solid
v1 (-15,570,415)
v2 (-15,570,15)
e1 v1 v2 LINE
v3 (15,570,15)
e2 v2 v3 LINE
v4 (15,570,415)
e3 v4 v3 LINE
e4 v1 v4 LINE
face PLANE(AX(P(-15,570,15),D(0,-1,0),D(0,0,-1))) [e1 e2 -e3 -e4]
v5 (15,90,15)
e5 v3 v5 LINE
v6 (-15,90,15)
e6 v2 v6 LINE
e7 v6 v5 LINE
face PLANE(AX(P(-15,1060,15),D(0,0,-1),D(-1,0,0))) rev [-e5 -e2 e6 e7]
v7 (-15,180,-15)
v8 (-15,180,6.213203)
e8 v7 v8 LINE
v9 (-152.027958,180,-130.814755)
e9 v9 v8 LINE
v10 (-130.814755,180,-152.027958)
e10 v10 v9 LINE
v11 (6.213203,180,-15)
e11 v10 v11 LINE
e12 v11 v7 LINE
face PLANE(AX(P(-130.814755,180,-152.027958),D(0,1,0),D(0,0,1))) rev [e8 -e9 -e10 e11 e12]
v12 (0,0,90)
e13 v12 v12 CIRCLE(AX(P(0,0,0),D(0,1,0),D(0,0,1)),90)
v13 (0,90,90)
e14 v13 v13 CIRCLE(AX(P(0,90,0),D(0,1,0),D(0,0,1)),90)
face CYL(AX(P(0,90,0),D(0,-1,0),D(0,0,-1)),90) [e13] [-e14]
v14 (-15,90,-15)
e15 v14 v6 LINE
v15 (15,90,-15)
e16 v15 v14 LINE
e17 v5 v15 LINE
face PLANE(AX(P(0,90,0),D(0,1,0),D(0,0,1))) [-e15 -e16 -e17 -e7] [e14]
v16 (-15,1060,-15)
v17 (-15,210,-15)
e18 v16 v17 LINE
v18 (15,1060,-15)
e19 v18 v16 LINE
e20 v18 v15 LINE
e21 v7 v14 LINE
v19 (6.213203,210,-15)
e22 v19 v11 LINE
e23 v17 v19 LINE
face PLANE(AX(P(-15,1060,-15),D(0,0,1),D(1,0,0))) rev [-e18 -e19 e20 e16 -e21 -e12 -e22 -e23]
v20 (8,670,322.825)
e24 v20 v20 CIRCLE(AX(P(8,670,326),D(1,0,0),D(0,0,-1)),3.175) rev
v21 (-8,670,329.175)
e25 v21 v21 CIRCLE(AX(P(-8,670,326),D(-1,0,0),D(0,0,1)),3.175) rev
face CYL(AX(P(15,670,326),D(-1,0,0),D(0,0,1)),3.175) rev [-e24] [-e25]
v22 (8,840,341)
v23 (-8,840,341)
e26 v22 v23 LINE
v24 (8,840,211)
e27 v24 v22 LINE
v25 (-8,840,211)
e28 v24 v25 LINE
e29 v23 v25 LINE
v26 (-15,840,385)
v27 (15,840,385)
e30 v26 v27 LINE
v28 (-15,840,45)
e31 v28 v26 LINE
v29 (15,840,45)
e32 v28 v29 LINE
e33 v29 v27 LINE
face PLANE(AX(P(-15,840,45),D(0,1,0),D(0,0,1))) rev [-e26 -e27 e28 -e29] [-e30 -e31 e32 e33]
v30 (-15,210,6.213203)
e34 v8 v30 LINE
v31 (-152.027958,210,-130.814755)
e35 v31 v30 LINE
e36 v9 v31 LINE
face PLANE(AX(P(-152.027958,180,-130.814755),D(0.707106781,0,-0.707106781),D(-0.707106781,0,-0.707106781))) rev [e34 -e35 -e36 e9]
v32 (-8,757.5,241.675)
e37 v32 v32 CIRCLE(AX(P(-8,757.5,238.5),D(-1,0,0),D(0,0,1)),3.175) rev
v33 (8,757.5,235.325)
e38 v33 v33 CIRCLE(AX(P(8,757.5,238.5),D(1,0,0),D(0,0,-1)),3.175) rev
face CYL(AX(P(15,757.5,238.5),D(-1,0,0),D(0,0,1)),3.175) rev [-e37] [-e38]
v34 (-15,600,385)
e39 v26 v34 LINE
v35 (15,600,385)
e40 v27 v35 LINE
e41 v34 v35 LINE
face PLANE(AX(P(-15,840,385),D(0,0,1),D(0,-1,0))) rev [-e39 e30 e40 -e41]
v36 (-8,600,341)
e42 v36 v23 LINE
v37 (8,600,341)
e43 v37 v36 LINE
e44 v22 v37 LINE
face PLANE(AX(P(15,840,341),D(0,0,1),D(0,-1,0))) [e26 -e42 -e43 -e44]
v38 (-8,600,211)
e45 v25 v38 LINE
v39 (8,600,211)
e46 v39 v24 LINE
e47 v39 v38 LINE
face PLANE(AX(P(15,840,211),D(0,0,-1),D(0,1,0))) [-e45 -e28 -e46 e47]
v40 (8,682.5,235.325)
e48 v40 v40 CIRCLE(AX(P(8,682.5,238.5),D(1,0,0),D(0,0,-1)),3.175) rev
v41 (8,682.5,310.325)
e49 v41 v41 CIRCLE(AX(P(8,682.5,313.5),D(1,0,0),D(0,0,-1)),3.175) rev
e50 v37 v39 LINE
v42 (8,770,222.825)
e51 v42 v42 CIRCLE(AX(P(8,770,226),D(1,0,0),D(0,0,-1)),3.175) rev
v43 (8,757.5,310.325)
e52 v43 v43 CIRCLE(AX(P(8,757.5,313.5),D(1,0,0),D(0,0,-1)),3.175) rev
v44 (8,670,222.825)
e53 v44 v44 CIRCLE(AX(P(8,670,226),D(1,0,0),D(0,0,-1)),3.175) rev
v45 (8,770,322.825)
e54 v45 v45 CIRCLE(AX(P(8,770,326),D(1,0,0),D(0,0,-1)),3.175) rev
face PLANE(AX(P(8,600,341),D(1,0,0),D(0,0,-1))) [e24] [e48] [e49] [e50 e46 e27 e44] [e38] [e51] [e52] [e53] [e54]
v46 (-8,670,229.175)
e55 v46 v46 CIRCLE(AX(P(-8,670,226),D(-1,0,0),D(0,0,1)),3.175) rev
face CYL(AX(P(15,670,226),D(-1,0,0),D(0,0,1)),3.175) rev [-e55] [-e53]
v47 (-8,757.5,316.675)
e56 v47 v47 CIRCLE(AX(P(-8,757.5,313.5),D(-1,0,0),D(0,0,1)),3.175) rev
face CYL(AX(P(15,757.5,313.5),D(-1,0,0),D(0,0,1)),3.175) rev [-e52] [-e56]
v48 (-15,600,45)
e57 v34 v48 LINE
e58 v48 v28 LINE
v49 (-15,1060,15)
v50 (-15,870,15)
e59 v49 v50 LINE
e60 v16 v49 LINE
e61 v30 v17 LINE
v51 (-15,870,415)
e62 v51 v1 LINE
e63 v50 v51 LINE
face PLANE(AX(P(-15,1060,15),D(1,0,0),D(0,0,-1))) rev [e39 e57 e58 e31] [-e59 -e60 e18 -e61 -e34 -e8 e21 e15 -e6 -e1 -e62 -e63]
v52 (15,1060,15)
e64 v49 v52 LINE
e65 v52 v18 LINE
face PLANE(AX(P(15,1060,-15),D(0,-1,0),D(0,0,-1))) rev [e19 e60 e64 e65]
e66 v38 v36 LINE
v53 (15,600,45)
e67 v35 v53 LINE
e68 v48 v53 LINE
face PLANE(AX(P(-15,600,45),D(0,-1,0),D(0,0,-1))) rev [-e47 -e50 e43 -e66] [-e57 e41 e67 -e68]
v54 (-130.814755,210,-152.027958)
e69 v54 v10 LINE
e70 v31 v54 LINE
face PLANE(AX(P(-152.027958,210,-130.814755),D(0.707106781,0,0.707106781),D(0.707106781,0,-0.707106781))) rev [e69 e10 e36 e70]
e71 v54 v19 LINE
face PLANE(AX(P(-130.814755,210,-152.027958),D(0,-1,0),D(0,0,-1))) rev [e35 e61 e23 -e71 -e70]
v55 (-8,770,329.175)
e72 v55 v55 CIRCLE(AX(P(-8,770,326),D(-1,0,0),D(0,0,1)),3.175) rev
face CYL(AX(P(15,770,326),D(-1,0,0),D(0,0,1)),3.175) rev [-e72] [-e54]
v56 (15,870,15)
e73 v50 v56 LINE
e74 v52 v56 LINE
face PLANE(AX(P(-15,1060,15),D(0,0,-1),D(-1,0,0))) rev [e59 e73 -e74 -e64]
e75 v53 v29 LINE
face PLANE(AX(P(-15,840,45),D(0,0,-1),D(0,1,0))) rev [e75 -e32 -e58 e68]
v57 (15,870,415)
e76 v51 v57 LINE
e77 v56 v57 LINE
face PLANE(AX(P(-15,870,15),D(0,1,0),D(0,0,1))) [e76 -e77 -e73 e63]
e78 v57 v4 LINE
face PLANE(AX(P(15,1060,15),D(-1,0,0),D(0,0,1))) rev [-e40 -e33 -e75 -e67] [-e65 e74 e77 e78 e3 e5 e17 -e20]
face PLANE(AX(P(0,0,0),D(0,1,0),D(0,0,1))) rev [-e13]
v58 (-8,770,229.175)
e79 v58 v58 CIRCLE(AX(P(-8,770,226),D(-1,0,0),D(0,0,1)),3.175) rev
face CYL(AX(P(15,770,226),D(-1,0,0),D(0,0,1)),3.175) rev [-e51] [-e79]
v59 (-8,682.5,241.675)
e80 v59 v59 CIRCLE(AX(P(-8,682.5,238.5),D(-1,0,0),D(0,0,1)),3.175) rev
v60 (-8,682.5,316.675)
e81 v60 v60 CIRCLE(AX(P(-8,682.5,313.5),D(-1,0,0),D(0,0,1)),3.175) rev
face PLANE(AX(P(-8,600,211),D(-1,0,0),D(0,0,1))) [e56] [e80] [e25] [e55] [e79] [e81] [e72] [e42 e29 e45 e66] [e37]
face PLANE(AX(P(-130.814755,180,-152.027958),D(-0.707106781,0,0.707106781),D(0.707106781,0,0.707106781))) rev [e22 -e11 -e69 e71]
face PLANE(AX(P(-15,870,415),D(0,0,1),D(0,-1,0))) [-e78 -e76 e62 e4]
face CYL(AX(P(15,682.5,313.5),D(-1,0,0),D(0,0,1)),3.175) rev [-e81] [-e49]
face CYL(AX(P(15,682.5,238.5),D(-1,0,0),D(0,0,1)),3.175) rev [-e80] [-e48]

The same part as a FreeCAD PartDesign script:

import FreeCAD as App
import Part
import Sketcher

V = App.Vector
Q = App.Units.Quantity


def add_polygon(sketch, points):
    """Adds a closed chain of lines whose ends are joined by coincident constraints."""
    first, n = sketch.GeometryCount, len(points)
    for a, b in zip(points, points[1:] + points[:1]):
        sketch.addGeometry(Part.LineSegment(App.Vector(*a, 0), App.Vector(*b, 0)), False)
    for i in range(n):
        sketch.addConstraint(Sketcher.Constraint("Coincident", first + i, 2, first + (i + 1) % n, 1))

doc = App.newDocument("Part")
body = doc.addObject("PartDesign::Body", "Body")

sketch1 = body.newObject("Sketcher::SketchObject", "Sketch")
sketch1.AttachmentSupport = (doc.getObject("XZ_Plane"), [""])
sketch1.MapMode = "FlatFace"
sketch1.addGeometry(Part.Circle(V(0, 0, 0), V(0, 0, 1), 90), False)
sketch1.addConstraint([
    Sketcher.Constraint("Coincident", 0, 3, -1, 1),
    Sketcher.Constraint("Diameter", 0, Q("180 mm")),
])
pad1 = body.newObject("PartDesign::Pad", "Pad")
pad1.Profile = sketch1
pad1.Length = 90
pad1.Reversed = True

sketch2 = body.newObject("Sketcher::SketchObject", "Sketch001")
sketch2.AttachmentSupport = (doc.getObject("XZ_Plane"), [""])
sketch2.MapMode = "FlatFace"
sketch2.AttachmentOffset = App.Placement(V(0, 0, -90), App.Rotation())
add_polygon(sketch2, [(-15, -15), (-15, 15), (15, 15), (15, -15)])
sketch2.addConstraint([
    Sketcher.Constraint("Vertical", 0),
    Sketcher.Constraint("Horizontal", 1),
    Sketcher.Constraint("Vertical", 2),
    Sketcher.Constraint("Horizontal", 3),
    Sketcher.Constraint("Symmetric", 0, 2, 2, 2, -1, 1),
    Sketcher.Constraint("Equal", 3, 0),
    Sketcher.Constraint("DistanceX", 1, 1, 1, 2, Q("30 mm")),
])
pad2 = body.newObject("PartDesign::Pad", "Pad001")
pad2.Profile = sketch2
pad2.Length = 970
pad2.Reversed = True

sketch3 = body.newObject("Sketcher::SketchObject", "Sketch002")
sketch3.Placement = App.Placement(V(0, 0, 0), App.Rotation(V(-0.707106781, 0, 0.707106781), V(0, 0.999999999, 0), V(-0.707106781, 0, -0.707106781), "ZXY"))
add_polygon(sketch3, [(-15, 210), (-15, 180), (15, 180), (15, 210)])
sketch3.addConstraint([
    Sketcher.Constraint("Vertical", 0),
    Sketcher.Constraint("Horizontal", 1),
    Sketcher.Constraint("Vertical", 2),
    Sketcher.Constraint("Horizontal", 3),
    Sketcher.Constraint("Equal", 3, 0),
    Sketcher.Constraint("DistanceX", 1, 1, 1, 2, Q("30 mm")),
    Sketcher.Constraint("DistanceX", 0, 2, -1, 1, Q("15 mm")),
    Sketcher.Constraint("DistanceY", -1, 1, 0, 2, Q("180 mm")),
])
pad3 = body.newObject("PartDesign::Pad", "Pad002")
pad3.Profile = sketch3
pad3.Length = 200

sketch4 = body.newObject("Sketcher::SketchObject", "Sketch003")
sketch4.AttachmentSupport = (doc.getObject("YZ_Plane"), [""])
sketch4.MapMode = "FlatFace"
sketch4.AttachmentOffset = App.Placement(V(0, 0, 15), App.Rotation())
add_polygon(sketch4, [(870, 415), (570, 415), (570, 15), (870, 15)])
add_polygon(sketch4, [(600, 45), (600, 385), (840, 385), (840, 45)])
sketch4.addConstraint([
    Sketcher.Constraint("Horizontal", 0),
    Sketcher.Constraint("Vertical", 1),
    Sketcher.Constraint("Horizontal", 2),
    Sketcher.Constraint("Vertical", 3),
    Sketcher.Constraint("Vertical", 4),
    Sketcher.Constraint("Horizontal", 5),
    Sketcher.Constraint("Vertical", 6),
    Sketcher.Constraint("Horizontal", 7),
    Sketcher.Constraint("DistanceX", 0, 2, 0, 1, Q("300 mm")),
    Sketcher.Constraint("DistanceX", 5, 1, 5, 2, Q("240 mm")),
    Sketcher.Constraint("DistanceY", 1, 2, 1, 1, Q("400 mm")),
    Sketcher.Constraint("DistanceY", 4, 1, 4, 2, Q("340 mm")),
    Sketcher.Constraint("DistanceX", -1, 1, 0, 2, Q("570 mm")),
    Sketcher.Constraint("DistanceY", -1, 1, 0, 2, Q("415 mm")),
    Sketcher.Constraint("DistanceX", -1, 1, 4, 2, Q("600 mm")),
    Sketcher.Constraint("DistanceY", -1, 1, 4, 2, Q("385 mm")),
])
pad4 = body.newObject("PartDesign::Pad", "Pad003")
pad4.Profile = sketch4
pad4.Length = 30
pad4.Reversed = True

sketch5 = body.newObject("Sketcher::SketchObject", "Sketch004")
sketch5.AttachmentSupport = (doc.getObject("YZ_Plane"), [""])
sketch5.MapMode = "FlatFace"
sketch5.AttachmentOffset = App.Placement(V(0, 0, -15), App.Rotation())
add_polygon(sketch5, [(840, 211), (600, 211), (600, 341), (840, 341)])
sketch5.addGeometry(Part.Circle(V(670, 226, 0), V(0, 0, 1), 3.2), False)
sketch5.addGeometry(Part.Circle(V(682.5, 238.5, 0), V(0, 0, 1), 3.2), False)
sketch5.addGeometry(Part.Circle(V(670, 326, 0), V(0, 0, 1), 3.2), False)
sketch5.addGeometry(Part.Circle(V(682.5, 313.5, 0), V(0, 0, 1), 3.2), False)
sketch5.addGeometry(Part.Circle(V(757.5, 238.5, 0), V(0, 0, 1), 3.2), False)
sketch5.addGeometry(Part.Circle(V(770, 226, 0), V(0, 0, 1), 3.2), False)
sketch5.addGeometry(Part.Circle(V(757.5, 313.5, 0), V(0, 0, 1), 3.2), False)
sketch5.addGeometry(Part.Circle(V(770, 326, 0), V(0, 0, 1), 3.2), False)
sketch5.addConstraint([
    Sketcher.Constraint("Horizontal", 0),
    Sketcher.Constraint("Vertical", 1),
    Sketcher.Constraint("Horizontal", 2),
    Sketcher.Constraint("Vertical", 3),
    Sketcher.Constraint("Equal", 4, 5),
    Sketcher.Constraint("Equal", 5, 6),
    Sketcher.Constraint("Equal", 6, 7),
    Sketcher.Constraint("Equal", 7, 8),
    Sketcher.Constraint("Equal", 8, 9),
    Sketcher.Constraint("Equal", 9, 10),
    Sketcher.Constraint("Equal", 10, 11),
    Sketcher.Constraint("Horizontal", 5, 3, 8, 3),
    Sketcher.Constraint("Horizontal", 4, 3, 9, 3),
    Sketcher.Constraint("Horizontal", 7, 3, 10, 3),
    Sketcher.Constraint("Horizontal", 6, 3, 11, 3),
    Sketcher.Constraint("Vertical", 4, 3, 6, 3),
    Sketcher.Constraint("Vertical", 5, 3, 7, 3),
    Sketcher.Constraint("Vertical", 8, 3, 10, 3),
    Sketcher.Constraint("Vertical", 9, 3, 11, 3),
    Sketcher.Constraint("Diameter", 4, Q("6.35 mm")),
    Sketcher.Constraint("DistanceX", 0, 2, 0, 1, Q("240 mm")),
    Sketcher.Constraint("DistanceY", 1, 1, 1, 2, Q("130 mm")),
    Sketcher.Constraint("DistanceX", -1, 1, 4, 3, Q("670 mm")),
    Sketcher.Constraint("DistanceY", -1, 1, 4, 3, Q("226 mm")),
    Sketcher.Constraint("DistanceY", -1, 1, 6, 3, Q("326 mm")),
    Sketcher.Constraint("DistanceX", -1, 1, 9, 3, Q("770 mm")),
    Sketcher.Constraint("DistanceX", -1, 1, 0, 2, Q("600 mm")),
    Sketcher.Constraint("DistanceY", -1, 1, 0, 2, Q("211 mm")),
    Sketcher.Constraint("DistanceY", 5, 3, 7, 3, Q("75 mm")),
    Sketcher.Constraint("DistanceX", 5, 3, 8, 3, Q("75 mm")),
    Sketcher.Constraint("DistanceX", -1, 1, 5, 3, Q("682.5 mm")),
    Sketcher.Constraint("DistanceY", -1, 1, 5, 3, Q("238.5 mm")),
])
pad5 = body.newObject("PartDesign::Pad", "Pad004")
pad5.Profile = sketch5
pad5.Length = 30

sketch6 = body.newObject("Sketcher::SketchObject", "Sketch005")
sketch6.AttachmentSupport = (doc.getObject("YZ_Plane"), [""])
sketch6.MapMode = "FlatFace"
sketch6.AttachmentOffset = App.Placement(V(0, 0, -15), App.Rotation())
add_polygon(sketch6, [(840, 211), (600, 211), (600, 341), (840, 341)])
sketch6.addConstraint([
    Sketcher.Constraint("Horizontal", 0),
    Sketcher.Constraint("Vertical", 1),
    Sketcher.Constraint("Horizontal", 2),
    Sketcher.Constraint("Vertical", 3),
    Sketcher.Constraint("DistanceX", 0, 2, 0, 1, Q("240 mm")),
    Sketcher.Constraint("DistanceY", 1, 1, 1, 2, Q("130 mm")),
    Sketcher.Constraint("DistanceX", -1, 1, 0, 2, Q("600 mm")),
    Sketcher.Constraint("DistanceY", -1, 1, 0, 2, Q("211 mm")),
])
pocket1 = body.newObject("PartDesign::Pocket", "Pocket")
pocket1.Profile = sketch6
pocket1.Length = 7
pocket1.Reversed = True

sketch7 = body.newObject("Sketcher::SketchObject", "Sketch006")
sketch7.AttachmentSupport = (doc.getObject("YZ_Plane"), [""])
sketch7.MapMode = "FlatFace"
sketch7.AttachmentOffset = App.Placement(V(0, 0, 15), App.Rotation())
add_polygon(sketch7, [(840, 341), (600, 341), (600, 211), (840, 211)])
sketch7.addConstraint([
    Sketcher.Constraint("Horizontal", 0),
    Sketcher.Constraint("Vertical", 1),
    Sketcher.Constraint("Horizontal", 2),
    Sketcher.Constraint("Vertical", 3),
    Sketcher.Constraint("DistanceX", 0, 2, 0, 1, Q("240 mm")),
    Sketcher.Constraint("DistanceY", 1, 2, 1, 1, Q("130 mm")),
    Sketcher.Constraint("DistanceX", -1, 1, 0, 2, Q("600 mm")),
    Sketcher.Constraint("DistanceY", -1, 1, 0, 2, Q("341 mm")),
])
pocket2 = body.newObject("PartDesign::Pocket", "Pocket001")
pocket2.Profile = sketch7
pocket2.Length = 7

doc.recompute()
